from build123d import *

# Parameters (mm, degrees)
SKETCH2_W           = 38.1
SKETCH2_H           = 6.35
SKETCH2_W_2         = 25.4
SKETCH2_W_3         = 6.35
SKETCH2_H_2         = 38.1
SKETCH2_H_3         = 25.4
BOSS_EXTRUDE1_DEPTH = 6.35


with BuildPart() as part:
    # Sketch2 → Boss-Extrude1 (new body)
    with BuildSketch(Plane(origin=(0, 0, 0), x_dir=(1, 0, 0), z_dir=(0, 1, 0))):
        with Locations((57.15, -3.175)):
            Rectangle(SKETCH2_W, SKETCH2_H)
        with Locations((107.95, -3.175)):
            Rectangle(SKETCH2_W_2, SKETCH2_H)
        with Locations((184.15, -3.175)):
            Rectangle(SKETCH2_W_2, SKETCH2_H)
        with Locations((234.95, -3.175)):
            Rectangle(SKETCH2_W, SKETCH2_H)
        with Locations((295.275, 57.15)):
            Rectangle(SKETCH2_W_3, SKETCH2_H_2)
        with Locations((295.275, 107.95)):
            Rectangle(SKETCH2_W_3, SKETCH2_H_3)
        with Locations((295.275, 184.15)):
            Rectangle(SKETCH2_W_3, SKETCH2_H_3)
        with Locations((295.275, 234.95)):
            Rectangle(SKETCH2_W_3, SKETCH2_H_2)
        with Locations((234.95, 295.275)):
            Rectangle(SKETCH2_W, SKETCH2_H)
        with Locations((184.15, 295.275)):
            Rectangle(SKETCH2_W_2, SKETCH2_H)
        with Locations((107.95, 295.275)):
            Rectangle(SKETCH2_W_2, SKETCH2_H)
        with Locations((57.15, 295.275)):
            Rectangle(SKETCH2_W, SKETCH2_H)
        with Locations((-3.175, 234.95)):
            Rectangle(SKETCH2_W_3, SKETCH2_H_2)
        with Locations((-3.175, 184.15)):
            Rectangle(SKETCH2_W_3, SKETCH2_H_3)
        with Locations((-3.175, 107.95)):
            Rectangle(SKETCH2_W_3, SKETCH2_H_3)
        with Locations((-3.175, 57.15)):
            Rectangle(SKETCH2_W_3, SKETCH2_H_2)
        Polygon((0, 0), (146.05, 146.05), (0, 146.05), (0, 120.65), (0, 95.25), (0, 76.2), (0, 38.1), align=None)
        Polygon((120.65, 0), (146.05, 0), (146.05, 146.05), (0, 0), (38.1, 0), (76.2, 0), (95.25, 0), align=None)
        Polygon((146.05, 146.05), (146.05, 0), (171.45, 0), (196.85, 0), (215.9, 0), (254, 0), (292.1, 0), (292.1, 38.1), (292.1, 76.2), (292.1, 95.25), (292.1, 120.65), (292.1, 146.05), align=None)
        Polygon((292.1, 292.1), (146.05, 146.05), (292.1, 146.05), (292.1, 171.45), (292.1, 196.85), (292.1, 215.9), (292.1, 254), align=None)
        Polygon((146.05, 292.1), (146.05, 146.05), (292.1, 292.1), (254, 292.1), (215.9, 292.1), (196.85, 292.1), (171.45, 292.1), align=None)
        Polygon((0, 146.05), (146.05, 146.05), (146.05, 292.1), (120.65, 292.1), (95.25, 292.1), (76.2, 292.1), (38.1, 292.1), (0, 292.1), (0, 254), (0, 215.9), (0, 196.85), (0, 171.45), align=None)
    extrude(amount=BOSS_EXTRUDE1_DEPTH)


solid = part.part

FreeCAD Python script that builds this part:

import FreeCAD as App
import Part
import Sketcher

V = App.Vector
Q = App.Units.Quantity

doc = App.newDocument("Part")
body = doc.addObject("PartDesign::Body", "Body")

# Sketch on XZ plane
sketch1 = body.newObject("Sketcher::SketchObject", "Sketch")
sketch1.AttachmentSupport = (doc.getObject("XZ_Plane"), [""])
sketch1.MapMode = "FlatFace"
sketch1.addGeometry(Part.LineSegment(V(38.1, 0, 0), V(38.1, 6.35, 0)), False)
sketch1.addGeometry(Part.LineSegment(V(38.1, 6.35, 0), V(76.2, 6.35, 0)), False)
sketch1.addGeometry(Part.LineSegment(V(76.2, 6.35, 0), V(76.2, 0, 0)), False)
sketch1.addGeometry(Part.LineSegment(V(76.2, 0, 0), V(95.25, 0, 0)), False)
sketch1.addGeometry(Part.LineSegment(V(95.25, 0, 0), V(95.25, 6.35, 0)), False)
sketch1.addGeometry(Part.LineSegment(V(95.25, 6.35, 0), V(120.65, 6.35, 0)), False)
sketch1.addGeometry(Part.LineSegment(V(120.65, 6.35, 0), V(120.65, 0, 0)), False)
sketch1.addGeometry(Part.LineSegment(V(120.65, 0, 0), V(171.45, 0, 0)), False)
sketch1.addGeometry(Part.LineSegment(V(171.45, 0, 0), V(171.45, 6.35, 0)), False)
sketch1.addGeometry(Part.LineSegment(V(171.45, 6.35, 0), V(196.85, 6.35, 0)), False)
sketch1.addGeometry(Part.LineSegment(V(196.85, 6.35, 0), V(196.85, 0, 0)), False)
sketch1.addGeometry(Part.LineSegment(V(196.85, 0, 0), V(215.9, 0, 0)), False)
sketch1.addGeometry(Part.LineSegment(V(215.9, 0, 0), V(215.9, 6.35, 0)), False)
sketch1.addGeometry(Part.LineSegment(V(215.9, 6.35, 0), V(254, 6.35, 0)), False)
sketch1.addGeometry(Part.LineSegment(V(254, 6.35, 0), V(254, 0, 0)), False)
sketch1.addGeometry(Part.LineSegment(V(254, 0, 0), V(292.1, 0, 0)), False)
sketch1.addGeometry(Part.LineSegment(V(292.1, 0, 0), V(292.1, -38.1, 0)), False)
sketch1.addGeometry(Part.LineSegment(V(292.1, -38.1, 0), V(298.45, -38.1, 0)), False)
sketch1.addGeometry(Part.LineSegment(V(298.45, -38.1, 0), V(298.45, -76.2, 0)), False)
sketch1.addGeometry(Part.LineSegment(V(298.45, -76.2, 0), V(292.1, -76.2, 0)), False)
sketch1.addGeometry(Part.LineSegment(V(292.1, -76.2, 0), V(292.1, -95.25, 0)), False)
sketch1.addGeometry(Part.LineSegment(V(292.1, -95.25, 0), V(298.45, -95.25, 0)), False)
sketch1.addGeometry(Part.LineSegment(V(298.45, -95.25, 0), V(298.45, -120.65, 0)), False)
sketch1.addGeometry(Part.LineSegment(V(298.45, -120.65, 0), V(292.1, -120.65, 0)), False)
sketch1.addGeometry(Part.LineSegment(V(292.1, -120.65, 0), V(292.1, -171.45, 0)), False)
sketch1.addGeometry(Part.LineSegment(V(292.1, -171.45, 0), V(298.45, -171.45, 0)), False)
sketch1.addGeometry(Part.LineSegment(V(298.45, -171.45, 0), V(298.45, -196.85, 0)), False)
sketch1.addGeometry(Part.LineSegment(V(298.45, -196.85, 0), V(292.1, -196.85, 0)), False)
sketch1.addGeometry(Part.LineSegment(V(292.1, -196.85, 0), V(292.1, -215.9, 0)), False)
sketch1.addGeometry(Part.LineSegment(V(292.1, -215.9, 0), V(298.45, -215.9, 0)), False)
sketch1.addGeometry(Part.LineSegment(V(298.45, -215.9, 0), V(298.45, -254, 0)), False)
sketch1.addGeometry(Part.LineSegment(V(298.45, -254, 0), V(292.1, -254, 0)), False)
sketch1.addGeometry(Part.LineSegment(V(292.1, -254, 0), V(292.1, -292.1, 0)), False)
sketch1.addGeometry(Part.LineSegment(V(292.1, -292.1, 0), V(254, -292.1, 0)), False)
sketch1.addGeometry(Part.LineSegment(V(254, -292.1, 0), V(254, -298.45, 0)), False)
sketch1.addGeometry(Part.LineSegment(V(254, -298.45, 0), V(215.9, -298.45, 0)), False)
sketch1.addGeometry(Part.LineSegment(V(215.9, -298.45, 0), V(215.9, -292.1, 0)), False)
sketch1.addGeometry(Part.LineSegment(V(215.9, -292.1, 0), V(196.85, -292.1, 0)), False)
sketch1.addGeometry(Part.LineSegment(V(196.85, -292.1, 0), V(196.85, -298.45, 0)), False)
sketch1.addGeometry(Part.LineSegment(V(196.85, -298.45, 0), V(171.45, -298.45, 0)), False)
sketch1.addGeometry(Part.LineSegment(V(171.45, -298.45, 0), V(171.45, -292.1, 0)), False)
sketch1.addGeometry(Part.LineSegment(V(171.45, -292.1, 0), V(120.65, -292.1, 0)), False)
sketch1.addGeometry(Part.LineSegment(V(120.65, -292.1, 0), V(120.65, -298.45, 0)), False)
sketch1.addGeometry(Part.LineSegment(V(120.65, -298.45, 0), V(95.25, -298.45, 0)), False)
sketch1.addGeometry(Part.LineSegment(V(95.25, -298.45, 0), V(95.25, -292.1, 0)), False)
sketch1.addGeometry(Part.LineSegment(V(95.25, -292.1, 0), V(76.2, -292.1, 0)), False)
sketch1.addGeometry(Part.LineSegment(V(76.2, -292.1, 0), V(76.2, -298.45, 0)), False)
sketch1.addGeometry(Part.LineSegment(V(76.2, -298.45, 0), V(38.1, -298.45, 0)), False)
sketch1.addGeometry(Part.LineSegment(V(38.1, -298.45, 0), V(38.1, -292.1, 0)), False)
sketch1.addGeometry(Part.LineSegment(V(38.1, -292.1, 0), V(0, -292.1, 0)), False)
sketch1.addGeometry(Part.LineSegment(V(0, -292.1, 0), V(0, -254, 0)), False)
sketch1.addGeometry(Part.LineSegment(V(0, -254, 0), V(-6.35, -254, 0)), False)
sketch1.addGeometry(Part.LineSegment(V(-6.35, -254, 0), V(-6.35, -215.9, 0)), False)
sketch1.addGeometry(Part.LineSegment(V(-6.35, -215.9, 0), V(0, -215.9, 0)), False)
sketch1.addGeometry(Part.LineSegment(V(0, -215.9, 0), V(0, -196.85, 0)), False)
sketch1.addGeometry(Part.LineSegment(V(0, -196.85, 0), V(-6.35, -196.85, 0)), False)
sketch1.addGeometry(Part.LineSegment(V(-6.35, -196.85, 0), V(-6.35, -171.45, 0)), False)
sketch1.addGeometry(Part.LineSegment(V(-6.35, -171.45, 0), V(0, -171.45, 0)), False)
sketch1.addGeometry(Part.LineSegment(V(0, -171.45, 0), V(0, -120.65, 0)), False)
sketch1.addGeometry(Part.LineSegment(V(0, -120.65, 0), V(-6.35, -120.65, 0)), False)
sketch1.addGeometry(Part.LineSegment(V(-6.35, -120.65, 0), V(-6.35, -95.25, 0)), False)
sketch1.addGeometry(Part.LineSegment(V(-6.35, -95.25, 0), V(0, -95.25, 0)), False)
sketch1.addGeometry(Part.LineSegment(V(0, -95.25, 0), V(0, -76.2, 0)), False)
sketch1.addGeometry(Part.LineSegment(V(0, -76.2, 0), V(-6.35, -76.2, 0)), False)
sketch1.addGeometry(Part.LineSegment(V(-6.35, -76.2, 0), V(-6.35, -38.1, 0)), False)
sketch1.addGeometry(Part.LineSegment(V(-6.35, -38.1, 0), V(0, -38.1, 0)), False)
sketch1.addGeometry(Part.LineSegment(V(0, -38.1, 0), V(0, 0, 0)), False)
sketch1.addGeometry(Part.LineSegment(V(0, 0, 0), V(38.1, 0, 0)), False)
sketch1.addConstraint(Sketcher.Constraint("Coincident", 0, 2, 1, 1))
sketch1.addConstraint(Sketcher.Constraint("Coincident", 1, 2, 2, 1))
sketch1.addConstraint(Sketcher.Constraint("Coincident", 2, 2, 3, 1))
sketch1.addConstraint(Sketcher.Constraint("Coincident", 3, 2, 4, 1))
sketch1.addConstraint(Sketcher.Constraint("Coincident", 4, 2, 5, 1))
sketch1.addConstraint(Sketcher.Constraint("Coincident", 5, 2, 6, 1))
sketch1.addConstraint(Sketcher.Constraint("Coincident", 6, 2, 7, 1))
sketch1.addConstraint(Sketcher.Constraint("Coincident", 7, 2, 8, 1))
sketch1.addConstraint(Sketcher.Constraint("Coincident", 8, 2, 9, 1))
sketch1.addConstraint(Sketcher.Constraint("Coincident", 9, 2, 10, 1))
sketch1.addConstraint(Sketcher.Constraint("Coincident", 10, 2, 11, 1))
sketch1.addConstraint(Sketcher.Constraint("Coincident", 11, 2, 12, 1))
sketch1.addConstraint(Sketcher.Constraint("Coincident", 12, 2, 13, 1))
sketch1.addConstraint(Sketcher.Constraint("Coincident", 13, 2, 14, 1))
sketch1.addConstraint(Sketcher.Constraint("Coincident", 14, 2, 15, 1))
sketch1.addConstraint(Sketcher.Constraint("Coincident", 15, 2, 16, 1))
sketch1.addConstraint(Sketcher.Constraint("Coincident", 16, 2, 17, 1))
sketch1.addConstraint(Sketcher.Constraint("Coincident", 17, 2, 18, 1))
sketch1.addConstraint(Sketcher.Constraint("Coincident", 18, 2, 19, 1))
sketch1.addConstraint(Sketcher.Constraint("Coincident", 19, 2, 20, 1))
sketch1.addConstraint(Sketcher.Constraint("Coincident", 20, 2, 21, 1))
sketch1.addConstraint(Sketcher.Constraint("Coincident", 21, 2, 22, 1))
sketch1.addConstraint(Sketcher.Constraint("Coincident", 22, 2, 23, 1))
sketch1.addConstraint(Sketcher.Constraint("Coincident", 23, 2, 24, 1))
sketch1.addConstraint(Sketcher.Constraint("Coincident", 24, 2, 25, 1))
sketch1.addConstraint(Sketcher.Constraint("Coincident", 25, 2, 26, 1))
sketch1.addConstraint(Sketcher.Constraint("Coincident", 26, 2, 27, 1))
sketch1.addConstraint(Sketcher.Constraint("Coincident", 27, 2, 28, 1))
sketch1.addConstraint(Sketcher.Constraint("Coincident", 28, 2, 29, 1))
sketch1.addConstraint(Sketcher.Constraint("Coincident", 29, 2, 30, 1))
sketch1.addConstraint(Sketcher.Constraint("Coincident", 30, 2, 31, 1))
sketch1.addConstraint(Sketcher.Constraint("Coincident", 31, 2, 32, 1))
sketch1.addConstraint(Sketcher.Constraint("Coincident", 32, 2, 33, 1))
sketch1.addConstraint(Sketcher.Constraint("Coincident", 33, 2, 34, 1))
sketch1.addConstraint(Sketcher.Constraint("Coincident", 34, 2, 35, 1))
sketch1.addConstraint(Sketcher.Constraint("Coincident", 35, 2, 36, 1))
sketch1.addConstraint(Sketcher.Constraint("Coincident", 36, 2, 37, 1))
sketch1.addConstraint(Sketcher.Constraint("Coincident", 37, 2, 38, 1))
sketch1.addConstraint(Sketcher.Constraint("Coincident", 38, 2, 39, 1))
sketch1.addConstraint(Sketcher.Constraint("Coincident", 39, 2, 40, 1))
sketch1.addConstraint(Sketcher.Constraint("Coincident", 40, 2, 41, 1))
sketch1.addConstraint(Sketcher.Constraint("Coincident", 41, 2, 42, 1))
sketch1.addConstraint(Sketcher.Constraint("Coincident", 42, 2, 43, 1))
sketch1.addConstraint(Sketcher.Constraint("Coincident", 43, 2, 44, 1))
sketch1.addConstraint(Sketcher.Constraint("Coincident", 44, 2, 45, 1))
sketch1.addConstraint(Sketcher.Constraint("Coincident", 45, 2, 46, 1))
sketch1.addConstraint(Sketcher.Constraint("Coincident", 46, 2, 47, 1))
sketch1.addConstraint(Sketcher.Constraint("Coincident", 47, 2, 48, 1))
sketch1.addConstraint(Sketcher.Constraint("Coincident", 48, 2, 49, 1))
sketch1.addConstraint(Sketcher.Constraint("Coincident", 49, 2, 50, 1))
sketch1.addConstraint(Sketcher.Constraint("Coincident", 50, 2, 51, 1))
sketch1.addConstraint(Sketcher.Constraint("Coincident", 51, 2, 52, 1))
sketch1.addConstraint(Sketcher.Constraint("Coincident", 52, 2, 53, 1))
sketch1.addConstraint(Sketcher.Constraint("Coincident", 53, 2, 54, 1))
sketch1.addConstraint(Sketcher.Constraint("Coincident", 54, 2, 55, 1))
sketch1.addConstraint(Sketcher.Constraint("Coincident", 55, 2, 56, 1))
sketch1.addConstraint(Sketcher.Constraint("Coincident", 56, 2, 57, 1))
sketch1.addConstraint(Sketcher.Constraint("Coincident", 57, 2, 58, 1))
sketch1.addConstraint(Sketcher.Constraint("Coincident", 58, 2, 59, 1))
sketch1.addConstraint(Sketcher.Constraint("Coincident", 59, 2, 60, 1))
sketch1.addConstraint(Sketcher.Constraint("Coincident", 60, 2, 61, 1))
sketch1.addConstraint(Sketcher.Constraint("Coincident", 61, 2, 62, 1))
sketch1.addConstraint(Sketcher.Constraint("Coincident", 62, 2, 63, 1))
sketch1.addConstraint(Sketcher.Constraint("Coincident", 63, 2, 64, 1))
sketch1.addConstraint(Sketcher.Constraint("Coincident", 64, 2, 65, 1))
sketch1.addConstraint(Sketcher.Constraint("Coincident", 65, 2, 66, 1))
sketch1.addConstraint(Sketcher.Constraint("Coincident", 66, 2, 67, 1))
sketch1.addConstraint(Sketcher.Constraint("Coincident", 67, 2, 0, 1))
sketch1.addConstraint(Sketcher.Constraint("Vertical", 0))
sketch1.addConstraint(Sketcher.Constraint("Horizontal", 1))
sketch1.addConstraint(Sketcher.Constraint("Vertical", 2))
sketch1.addConstraint(Sketcher.Constraint("Horizontal", 3))
sketch1.addConstraint(Sketcher.Constraint("Vertical", 4))
sketch1.addConstraint(Sketcher.Constraint("Horizontal", 5))
sketch1.addConstraint(Sketcher.Constraint("Vertical", 6))
sketch1.addConstraint(Sketcher.Constraint("Horizontal", 7))
sketch1.addConstraint(Sketcher.Constraint("Vertical", 8))
sketch1.addConstraint(Sketcher.Constraint("Horizontal", 9))
sketch1.addConstraint(Sketcher.Constraint("Vertical", 10))
sketch1.addConstraint(Sketcher.Constraint("Horizontal", 11))
sketch1.addConstraint(Sketcher.Constraint("Vertical", 12))
sketch1.addConstraint(Sketcher.Constraint("Horizontal", 13))
sketch1.addConstraint(Sketcher.Constraint("Vertical", 14))
sketch1.addConstraint(Sketcher.Constraint("Horizontal", 15))
sketch1.addConstraint(Sketcher.Constraint("Vertical", 16))
sketch1.addConstraint(Sketcher.Constraint("Horizontal", 17))
sketch1.addConstraint(Sketcher.Constraint("Vertical", 18))
sketch1.addConstraint(Sketcher.Constraint("Horizontal", 19))
sketch1.addConstraint(Sketcher.Constraint("Vertical", 20))
sketch1.addConstraint(Sketcher.Constraint("Horizontal", 21))
sketch1.addConstraint(Sketcher.Constraint("Vertical", 22))
sketch1.addConstraint(Sketcher.Constraint("Horizontal", 23))
sketch1.addConstraint(Sketcher.Constraint("Vertical", 24))
sketch1.addConstraint(Sketcher.Constraint("Horizontal", 25))
sketch1.addConstraint(Sketcher.Constraint("Vertical", 26))
sketch1.addConstraint(Sketcher.Constraint("Horizontal", 27))
sketch1.addConstraint(Sketcher.Constraint("Vertical", 28))
sketch1.addConstraint(Sketcher.Constraint("Horizontal", 29))
sketch1.addConstraint(Sketcher.Constraint("Vertical", 30))
sketch1.addConstraint(Sketcher.Constraint("Horizontal", 31))
sketch1.addConstraint(Sketcher.Constraint("Vertical", 32))
sketch1.addConstraint(Sketcher.Constraint("Horizontal", 33))
sketch1.addConstraint(Sketcher.Constraint("Vertical", 34))
sketch1.addConstraint(Sketcher.Constraint("Horizontal", 35))
sketch1.addConstraint(Sketcher.Constraint("Vertical", 36))
sketch1.addConstraint(Sketcher.Constraint("Horizontal", 37))
sketch1.addConstraint(Sketcher.Constraint("Vertical", 38))
sketch1.addConstraint(Sketcher.Constraint("Horizontal", 39))
sketch1.addConstraint(Sketcher.Constraint("Vertical", 40))
sketch1.addConstraint(Sketcher.Constraint("Horizontal", 41))
sketch1.addConstraint(Sketcher.Constraint("Vertical", 42))
sketch1.addConstraint(Sketcher.Constraint("Horizontal", 43))
sketch1.addConstraint(Sketcher.Constraint("Vertical", 44))
sketch1.addConstraint(Sketcher.Constraint("Horizontal", 45))
sketch1.addConstraint(Sketcher.Constraint("Vertical", 46))
sketch1.addConstraint(Sketcher.Constraint("Horizontal", 47))
sketch1.addConstraint(Sketcher.Constraint("Vertical", 48))
sketch1.addConstraint(Sketcher.Constraint("Horizontal", 49))
sketch1.addConstraint(Sketcher.Constraint("Vertical", 50))
sketch1.addConstraint(Sketcher.Constraint("Horizontal", 51))
sketch1.addConstraint(Sketcher.Constraint("Vertical", 52))
sketch1.addConstraint(Sketcher.Constraint("Horizontal", 53))
sketch1.addConstraint(Sketcher.Constraint("Vertical", 54))
sketch1.addConstraint(Sketcher.Constraint("Horizontal", 55))
sketch1.addConstraint(Sketcher.Constraint("Vertical", 56))
sketch1.addConstraint(Sketcher.Constraint("Horizontal", 57))
sketch1.addConstraint(Sketcher.Constraint("Vertical", 58))
sketch1.addConstraint(Sketcher.Constraint("Horizontal", 59))
sketch1.addConstraint(Sketcher.Constraint("Vertical", 60))
sketch1.addConstraint(Sketcher.Constraint("Horizontal", 61))
sketch1.addConstraint(Sketcher.Constraint("Vertical", 62))
sketch1.addConstraint(Sketcher.Constraint("Horizontal", 63))
sketch1.addConstraint(Sketcher.Constraint("Vertical", 64))
sketch1.addConstraint(Sketcher.Constraint("Horizontal", 65))
sketch1.addConstraint(Sketcher.Constraint("Vertical", 66))
sketch1.addConstraint(Sketcher.Constraint("Horizontal", 67))
sketch1.addConstraint(Sketcher.Constraint("Coincident", 66, 2, -1, 1))
sketch1.addConstraint(Sketcher.Constraint("PointOnObject", 2, 2, -1))
sketch1.addConstraint(Sketcher.Constraint("PointOnObject", 6, 2, -1))
sketch1.addConstraint(Sketcher.Constraint("PointOnObject", 10, 2, -1))
sketch1.addConstraint(Sketcher.Constraint("PointOnObject", 14, 2, -1))
sketch1.addConstraint(Sketcher.Constraint("PointOnObject", 49, 2, -2))
sketch1.addConstraint(Sketcher.Constraint("PointOnObject", 53, 2, -2))
sketch1.addConstraint(Sketcher.Constraint("PointOnObject", 57, 2, -2))
sketch1.addConstraint(Sketcher.Constraint("PointOnObject", 61, 2, -2))
sketch1.addConstraint(Sketcher.Constraint("Horizontal", 1, 2, 4, 2))
sketch1.addConstraint(Sketcher.Constraint("Horizontal", 5, 2, 8, 2))
sketch1.addConstraint(Sketcher.Constraint("Horizontal", 9, 2, 12, 2))
sketch1.addConstraint(Sketcher.Constraint("Horizontal", 33, 2, 36, 2))
sketch1.addConstraint(Sketcher.Constraint("Horizontal", 35, 2, 38, 2))
sketch1.addConstraint(Sketcher.Constraint("Horizontal", 37, 2, 40, 2))
sketch1.addConstraint(Sketcher.Constraint("Horizontal", 39, 2, 42, 2))
sketch1.addConstraint(Sketcher.Constraint("Horizontal", 41, 2, 44, 2))
sketch1.addConstraint(Sketcher.Constraint("Horizontal", 43, 2, 46, 2))
sketch1.addConstraint(Sketcher.Constraint("Horizontal", 45, 2, 48, 2))
sketch1.addConstraint(Sketcher.Constraint("Horizontal", 31, 2, 50, 2))
sketch1.addConstraint(Sketcher.Constraint("Horizontal", 29, 2, 52, 2))
sketch1.addConstraint(Sketcher.Constraint("Horizontal", 27, 2, 54, 2))
sketch1.addConstraint(Sketcher.Constraint("Horizontal", 25, 2, 56, 2))
sketch1.addConstraint(Sketcher.Constraint("Horizontal", 23, 2, 58, 2))
sketch1.addConstraint(Sketcher.Constraint("Horizontal", 21, 2, 60, 2))
sketch1.addConstraint(Sketcher.Constraint("Horizontal", 19, 2, 62, 2))
sketch1.addConstraint(Sketcher.Constraint("Horizontal", 17, 2, 64, 2))
sketch1.addConstraint(Sketcher.Constraint("Vertical", 16, 2, 19, 2))
sketch1.addConstraint(Sketcher.Constraint("Vertical", 18, 2, 21, 2))
sketch1.addConstraint(Sketcher.Constraint("Vertical", 20, 2, 23, 2))
sketch1.addConstraint(Sketcher.Constraint("Vertical", 22, 2, 25, 2))
sketch1.addConstraint(Sketcher.Constraint("Vertical", 24, 2, 27, 2))
sketch1.addConstraint(Sketcher.Constraint("Vertical", 26, 2, 29, 2))
sketch1.addConstraint(Sketcher.Constraint("Vertical", 28, 2, 31, 2))
sketch1.addConstraint(Sketcher.Constraint("Vertical", 14, 2, 33, 2))
sketch1.addConstraint(Sketcher.Constraint("Vertical", 12, 2, 35, 2))
sketch1.addConstraint(Sketcher.Constraint("Vertical", 10, 2, 37, 2))
sketch1.addConstraint(Sketcher.Constraint("Vertical", 8, 2, 39, 2))
sketch1.addConstraint(Sketcher.Constraint("Vertical", 6, 2, 41, 2))
sketch1.addConstraint(Sketcher.Constraint("Vertical", 4, 2, 43, 2))
sketch1.addConstraint(Sketcher.Constraint("Vertical", 2, 2, 45, 2))
sketch1.addConstraint(Sketcher.Constraint("Vertical", 0, 2, 47, 2))
sketch1.addConstraint(Sketcher.Constraint("Vertical", 52, 2, 55, 2))
sketch1.addConstraint(Sketcher.Constraint("Vertical", 56, 2, 59, 2))
sketch1.addConstraint(Sketcher.Constraint("Vertical", 60, 2, 63, 2))
sketch1.addConstraint(Sketcher.Constraint("Equal", 5, 9))
sketch1.addConstraint(Sketcher.Constraint("Equal", 3, 11))
sketch1.addConstraint(Sketcher.Constraint("Equal", 1, 13))
sketch1.addConstraint(Sketcher.Constraint("Equal", 13, 15))
sketch1.addConstraint(Sketcher.Constraint("Equal", 47, 49))
sketch1.addConstraint(Sketcher.Constraint("Equal", 31, 51))
sketch1.addConstraint(Sketcher.Constraint("Equal", 65, 0))
sketch1.addConstraint(Sketcher.Constraint("Equal", 67, 16))
sketch1.addConstraint(Sketcher.Constraint("Equal", 16, 18))
sketch1.addConstraint(Sketcher.Constraint("Equal", 45, 20))
sketch1.addConstraint(Sketcher.Constraint("Equal", 43, 22))
sketch1.addConstraint(Sketcher.Constraint("Equal", 41, 24))
sketch1.addConstraint(Sketcher.Constraint("Equal", 22, 26))
sketch1.addConstraint(Sketcher.Constraint("Equal", 20, 28))
sketch1.addConstraint(Sketcher.Constraint("Equal", 18, 30))
sketch1.addConstraint(Sketcher.Constraint("Equal", 30, 32))
sketch1.addConstraint(Sketcher.Constraint("Equal", 14, 34))
sketch1.addConstraint(Sketcher.Constraint("DistanceX", 5, 1, 5, 2, Q("1 in")))
sketch1.addConstraint(Sketcher.Constraint("DistanceX", 7, 1, 7, 2, Q("2 in")))
sketch1.addConstraint(Sketcher.Constraint("DistanceX", 1, 1, 1, 2, Q("1.5 in")))
sketch1.addConstraint(Sketcher.Constraint("DistanceX", -1, 1, 13, 2, Q("10 in")))
sketch1.addConstraint(Sketcher.Constraint("DistanceX", 17, 1, 17, 2, Q("0.25 in")))
pad1 = body.newObject("PartDesign::Pad", "Pad")
pad1.Profile = sketch1
pad1.Length = Q("0.25 in")
pad1.Reversed = True

doc.recompute()
